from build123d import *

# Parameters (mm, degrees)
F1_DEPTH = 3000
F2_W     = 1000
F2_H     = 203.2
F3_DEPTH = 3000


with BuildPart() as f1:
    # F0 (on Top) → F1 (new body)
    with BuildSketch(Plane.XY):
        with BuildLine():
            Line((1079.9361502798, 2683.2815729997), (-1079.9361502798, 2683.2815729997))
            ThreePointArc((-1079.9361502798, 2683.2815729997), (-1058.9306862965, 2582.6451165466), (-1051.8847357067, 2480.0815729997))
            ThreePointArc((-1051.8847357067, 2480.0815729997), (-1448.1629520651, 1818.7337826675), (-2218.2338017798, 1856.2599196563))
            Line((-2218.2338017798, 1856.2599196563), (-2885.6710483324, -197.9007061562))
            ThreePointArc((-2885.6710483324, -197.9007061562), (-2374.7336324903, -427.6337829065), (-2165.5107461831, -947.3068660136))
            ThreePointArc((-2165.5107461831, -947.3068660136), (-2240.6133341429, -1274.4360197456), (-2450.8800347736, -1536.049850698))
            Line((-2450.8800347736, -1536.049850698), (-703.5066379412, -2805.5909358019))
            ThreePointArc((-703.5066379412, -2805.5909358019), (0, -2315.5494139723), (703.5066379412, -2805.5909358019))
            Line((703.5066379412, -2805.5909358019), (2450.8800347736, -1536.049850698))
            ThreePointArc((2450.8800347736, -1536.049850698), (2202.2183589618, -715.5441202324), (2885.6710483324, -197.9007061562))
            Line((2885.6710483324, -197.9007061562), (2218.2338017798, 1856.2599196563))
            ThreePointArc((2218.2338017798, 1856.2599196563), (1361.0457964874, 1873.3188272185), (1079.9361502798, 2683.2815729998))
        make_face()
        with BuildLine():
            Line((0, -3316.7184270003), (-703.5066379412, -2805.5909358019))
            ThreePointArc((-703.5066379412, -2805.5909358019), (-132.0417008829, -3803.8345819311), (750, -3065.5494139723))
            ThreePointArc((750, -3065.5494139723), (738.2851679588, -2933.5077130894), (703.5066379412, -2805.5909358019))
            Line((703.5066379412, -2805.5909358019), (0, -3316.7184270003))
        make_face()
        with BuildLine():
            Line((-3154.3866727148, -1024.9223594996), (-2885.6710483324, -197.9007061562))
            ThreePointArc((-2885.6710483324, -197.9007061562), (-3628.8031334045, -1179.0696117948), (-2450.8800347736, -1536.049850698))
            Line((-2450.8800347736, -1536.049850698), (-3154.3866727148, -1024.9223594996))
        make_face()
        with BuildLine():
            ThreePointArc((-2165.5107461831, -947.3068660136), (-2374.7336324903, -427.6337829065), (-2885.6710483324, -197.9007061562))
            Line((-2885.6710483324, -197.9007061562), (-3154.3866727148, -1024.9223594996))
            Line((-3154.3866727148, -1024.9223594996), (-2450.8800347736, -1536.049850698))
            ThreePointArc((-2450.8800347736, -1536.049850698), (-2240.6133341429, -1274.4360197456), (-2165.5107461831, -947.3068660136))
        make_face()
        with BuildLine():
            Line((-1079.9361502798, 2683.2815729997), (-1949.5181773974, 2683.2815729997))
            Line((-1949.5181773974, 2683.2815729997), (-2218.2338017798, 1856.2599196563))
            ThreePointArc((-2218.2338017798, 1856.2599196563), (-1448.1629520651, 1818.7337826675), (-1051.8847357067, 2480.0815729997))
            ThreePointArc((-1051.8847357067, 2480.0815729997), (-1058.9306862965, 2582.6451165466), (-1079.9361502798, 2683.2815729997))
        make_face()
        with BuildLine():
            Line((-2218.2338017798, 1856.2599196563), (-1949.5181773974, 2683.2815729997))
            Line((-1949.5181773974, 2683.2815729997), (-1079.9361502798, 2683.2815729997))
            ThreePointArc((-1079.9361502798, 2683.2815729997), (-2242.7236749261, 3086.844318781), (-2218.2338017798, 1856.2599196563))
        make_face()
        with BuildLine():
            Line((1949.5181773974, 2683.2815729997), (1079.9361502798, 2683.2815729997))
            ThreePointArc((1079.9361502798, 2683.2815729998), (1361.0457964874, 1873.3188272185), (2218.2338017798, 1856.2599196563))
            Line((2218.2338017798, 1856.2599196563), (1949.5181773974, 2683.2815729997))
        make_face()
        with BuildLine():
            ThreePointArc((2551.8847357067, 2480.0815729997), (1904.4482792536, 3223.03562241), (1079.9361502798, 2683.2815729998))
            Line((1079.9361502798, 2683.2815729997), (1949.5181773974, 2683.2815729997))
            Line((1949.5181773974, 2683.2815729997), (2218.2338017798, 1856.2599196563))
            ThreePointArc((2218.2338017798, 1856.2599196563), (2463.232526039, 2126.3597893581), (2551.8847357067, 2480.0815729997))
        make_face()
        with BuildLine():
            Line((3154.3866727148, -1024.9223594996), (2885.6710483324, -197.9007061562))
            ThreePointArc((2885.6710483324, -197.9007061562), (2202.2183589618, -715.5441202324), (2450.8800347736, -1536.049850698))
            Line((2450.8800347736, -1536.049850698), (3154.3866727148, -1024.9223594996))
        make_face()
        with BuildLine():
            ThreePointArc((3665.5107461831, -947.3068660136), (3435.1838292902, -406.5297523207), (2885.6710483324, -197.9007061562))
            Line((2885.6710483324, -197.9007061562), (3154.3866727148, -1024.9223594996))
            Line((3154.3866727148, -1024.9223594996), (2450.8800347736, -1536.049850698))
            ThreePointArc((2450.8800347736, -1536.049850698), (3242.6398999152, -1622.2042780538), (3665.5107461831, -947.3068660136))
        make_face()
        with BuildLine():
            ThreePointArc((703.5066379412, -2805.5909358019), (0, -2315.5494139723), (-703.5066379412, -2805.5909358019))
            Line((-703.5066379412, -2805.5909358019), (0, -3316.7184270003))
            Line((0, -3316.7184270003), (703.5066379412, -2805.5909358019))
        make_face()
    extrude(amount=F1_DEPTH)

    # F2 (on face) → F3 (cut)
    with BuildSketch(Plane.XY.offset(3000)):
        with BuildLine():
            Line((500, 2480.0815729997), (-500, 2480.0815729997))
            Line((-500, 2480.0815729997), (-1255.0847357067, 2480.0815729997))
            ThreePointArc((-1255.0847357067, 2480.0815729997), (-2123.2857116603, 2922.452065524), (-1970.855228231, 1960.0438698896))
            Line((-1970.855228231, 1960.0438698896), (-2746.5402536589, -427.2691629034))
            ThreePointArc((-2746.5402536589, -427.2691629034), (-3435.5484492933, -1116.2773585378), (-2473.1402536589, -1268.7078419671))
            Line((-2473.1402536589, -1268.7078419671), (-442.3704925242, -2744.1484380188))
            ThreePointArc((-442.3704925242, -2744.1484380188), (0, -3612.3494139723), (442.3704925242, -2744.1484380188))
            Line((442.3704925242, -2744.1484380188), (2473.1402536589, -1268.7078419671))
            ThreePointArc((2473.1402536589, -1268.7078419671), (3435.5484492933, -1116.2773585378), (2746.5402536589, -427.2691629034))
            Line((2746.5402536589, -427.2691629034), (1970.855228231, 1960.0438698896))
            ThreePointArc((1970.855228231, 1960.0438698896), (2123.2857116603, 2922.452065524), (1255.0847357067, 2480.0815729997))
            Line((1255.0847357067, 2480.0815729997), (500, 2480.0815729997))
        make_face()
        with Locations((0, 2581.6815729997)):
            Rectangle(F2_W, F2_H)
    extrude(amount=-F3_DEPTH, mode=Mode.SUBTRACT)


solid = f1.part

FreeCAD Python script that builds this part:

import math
import FreeCAD as App
import Part
import Sketcher
from FreeCAD import Vector
Q = App.Units.Quantity

doc = App.newDocument("Part")
body = doc.addObject("PartDesign::Body", "Body")

# Sketch on XY plane
sketch1 = body.newObject("Sketcher::SketchObject", "Sketch")
sketch1.AttachmentSupport = (doc.getObject("XY_Plane"), [""])
sketch1.MapMode = "FlatFace"
sketch1.addGeometry([
    Part.ArcOfCircle(Part.Circle(Vector(-1802, 2480, 0), Vector(0, 0, 1), 750), math.radians(16), math.radians(236)),  # 0
    Part.LineSegment(Vector(-2218, 1856, 0), Vector(-2886, -198, 0)),  # 1
    Part.ArcOfCircle(Part.Circle(Vector(-2916, -947, 0), Vector(0, 0, 1), 750), math.radians(88), math.radians(308)),  # 2
    Part.LineSegment(Vector(-2451, -1536, 0), Vector(-704, -2806, 0)),  # 3
    Part.ArcOfCircle(Part.Circle(Vector(0, -3066, 0), Vector(0, 0, 1), 750), math.radians(160), math.radians(380)),  # 4
    Part.LineSegment(Vector(704, -2806, 0), Vector(2451, -1536, 0)),  # 5
    Part.ArcOfCircle(Part.Circle(Vector(2916, -947, 0), Vector(0, 0, 1), 750), math.radians(-128), math.radians(92)),  # 6
    Part.LineSegment(Vector(2886, -198, 0), Vector(2218, 1856, 0)),  # 7
    Part.ArcOfCircle(Part.Circle(Vector(1802, 2480, 0), Vector(0, 0, 1), 750), math.radians(-56), math.radians(164)),  # 8
    Part.LineSegment(Vector(1080, 2683, 0), Vector(-1080, 2683, 0)),  # 9
], False)
sketch1.addConstraint([
    Sketcher.Constraint("Coincident", 0, 2, 1, 1),
    Sketcher.Constraint("Coincident", 1, 2, 2, 1),
    Sketcher.Constraint("Coincident", 2, 2, 3, 1),
    Sketcher.Constraint("Coincident", 3, 2, 4, 1),
    Sketcher.Constraint("Coincident", 4, 2, 5, 1),
    Sketcher.Constraint("Coincident", 5, 2, 6, 1),
    Sketcher.Constraint("Coincident", 6, 2, 7, 1),
    Sketcher.Constraint("Coincident", 7, 2, 8, 1),
    Sketcher.Constraint("Coincident", 8, 2, 9, 1),
    Sketcher.Constraint("Coincident", 9, 2, 0, 1),
    Sketcher.Constraint("Horizontal", 9),
    Sketcher.Constraint("Equal", 0, 2),
    Sketcher.Constraint("Equal", 2, 4),
    Sketcher.Constraint("Equal", 4, 6),
    Sketcher.Constraint("Equal", 6, 8),
    Sketcher.Constraint("Symmetric", 2, 3, 6, 3, -2),
    Sketcher.Constraint("Symmetric", 0, 3, 8, 3, -2),
    Sketcher.Constraint("PointOnObject", 4, 3, -2),
    Sketcher.Constraint("Equal", 1, 3),
    Sketcher.Constraint("Equal", 3, 5),
    Sketcher.Constraint("Equal", 5, 7),
    Sketcher.Constraint("Radius", 0, Q("750 mm")),
    Sketcher.Constraint("Angle", 1, Q("-108 deg")),
    Sketcher.Constraint("Angle", 3, Q("-36 deg")),
    Sketcher.Constraint("Angle", 5, Q("36 deg")),
    Sketcher.Constraint("Angle", 7, Q("108 deg")),
    Sketcher.Constraint("DistanceY", 0, 3, 9, 2, Q("203.2 mm")),
    Sketcher.Constraint("DistanceX", 9, 2, 9, 1, Q("2159.872301 mm")),
    Sketcher.Constraint("Distance", 1, Q("2159.872301 mm")),
    Sketcher.Constraint("DistanceX", -1, 1, 7, 2, Q("2218.233802 mm")),
    Sketcher.Constraint("DistanceX", 8, 3, 5, 2, Q("648.995299 mm")),
    Sketcher.Constraint("DistanceY", 5, 2, -1, 1, Q("1536.049851 mm")),
    Sketcher.Constraint("DistanceY", -1, 1, 7, 2, Q("1856.25992 mm")),
])
pad1 = body.newObject("PartDesign::Pad", "Pad")
pad1.Profile = sketch1
pad1.Length = 3000

# Sketch on XY plane
sketch2 = body.newObject("Sketcher::SketchObject", "Sketch001")
sketch2.AttachmentSupport = (doc.getObject("XY_Plane"), [""])
sketch2.MapMode = "FlatFace"
sketch2.AttachmentOffset = App.Placement(Vector(0, 0, 3000), App.Rotation())
sketch2.addGeometry([
    Part.ArcOfCircle(Part.Circle(Vector(-1802, 2480, 0), Vector(0, 0, 1), 547), math.radians(0), math.radians(252)),  # 0
    Part.LineSegment(Vector(-1971, 1960, 0), Vector(-2747, -427, 0)),  # 1
    Part.ArcOfCircle(Part.Circle(Vector(-2916, -947, 0), Vector(0, 0, 1), 547), math.radians(72), math.radians(324)),  # 2
    Part.LineSegment(Vector(-2473, -1269, 0), Vector(-442, -2744, 0)),  # 3
    Part.ArcOfCircle(Part.Circle(Vector(0, -3066, 0), Vector(0, 0, 1), 547), math.radians(144), math.radians(396)),  # 4
    Part.LineSegment(Vector(442, -2744, 0), Vector(2473, -1269, 0)),  # 5
    Part.ArcOfCircle(Part.Circle(Vector(2916, -947, 0), Vector(0, 0, 1), 547), math.radians(-144), math.radians(108)),  # 6
    Part.LineSegment(Vector(2747, -427, 0), Vector(1971, 1960, 0)),  # 7
    Part.ArcOfCircle(Part.Circle(Vector(1802, 2480, 0), Vector(0, 0, 1), 547), math.radians(-72), math.radians(180)),  # 8
    Part.LineSegment(Vector(1255, 2480, 0), Vector(500, 2480, 0)),  # 9
    Part.LineSegment(Vector(500, 2480, 0), Vector(500, 2683, 0)),  # 10
    Part.LineSegment(Vector(500, 2683, 0), Vector(-500, 2683, 0)),  # 11
    Part.LineSegment(Vector(-500, 2683, 0), Vector(-500, 2480, 0)),  # 12
    Part.LineSegment(Vector(-500, 2480, 0), Vector(-1255, 2480, 0)),  # 13
], False)
sketch2.addConstraint([
    Sketcher.Constraint("Coincident", 0, 2, 1, 1),
    Sketcher.Constraint("Coincident", 1, 2, 2, 1),
    Sketcher.Constraint("Coincident", 2, 2, 3, 1),
    Sketcher.Constraint("Coincident", 3, 2, 4, 1),
    Sketcher.Constraint("Coincident", 4, 2, 5, 1),
    Sketcher.Constraint("Coincident", 5, 2, 6, 1),
    Sketcher.Constraint("Coincident", 6, 2, 7, 1),
    Sketcher.Constraint("Coincident", 7, 2, 8, 1),
    Sketcher.Constraint("Coincident", 8, 2, 9, 1),
    Sketcher.Constraint("Coincident", 9, 2, 10, 1),
    Sketcher.Constraint("Coincident", 10, 2, 11, 1),
    Sketcher.Constraint("Coincident", 11, 2, 12, 1),
    Sketcher.Constraint("Coincident", 12, 2, 13, 1),
    Sketcher.Constraint("Coincident", 13, 2, 0, 1),
    Sketcher.Constraint("Horizontal", 9),
    Sketcher.Constraint("Vertical", 10),
    Sketcher.Constraint("Horizontal", 11),
    Sketcher.Constraint("Vertical", 12),
    Sketcher.Constraint("Horizontal", 13),
    Sketcher.Constraint("Equal", 0, 2),
    Sketcher.Constraint("Equal", 2, 4),
    Sketcher.Constraint("Equal", 4, 6),
    Sketcher.Constraint("Equal", 6, 8),
    Sketcher.Constraint("Symmetric", 2, 3, 6, 3, -2),
    Sketcher.Constraint("Symmetric", 0, 3, 8, 3, -2),
    Sketcher.Constraint("Symmetric", 3, 2, 4, 2, -2),
    Sketcher.Constraint("Symmetric", 9, 2, 12, 2, -2),
    Sketcher.Constraint("Horizontal", 2, 2, 5, 2),
    Sketcher.Constraint("Horizontal", 1, 2, 6, 2),
    Sketcher.Constraint("Horizontal", 0, 2, 7, 2),
    Sketcher.Constraint("Equal", 1, 3),
    Sketcher.Constraint("Radius", 0, Q("546.8 mm")),
    Sketcher.Constraint("DistanceX", 11, 2, 11, 1, Q("1000 mm")),
    Sketcher.Constraint("Angle", 1, Q("-108 deg")),
    Sketcher.Constraint("Angle", 3, Q("-36 deg")),
    Sketcher.Constraint("DistanceY", 10, 1, 10, 2, Q("203.2 mm")),
    Sketcher.Constraint("DistanceX", 1, 2, 2, 2, Q("273.4 mm")),
    Sketcher.Constraint("DistanceY", 8, 3, 10, 2, Q("203.2 mm")),
    Sketcher.Constraint("Distance", 1, Q("2510.169471 mm")),
    Sketcher.Constraint("DistanceX", 9, 2, 9, 1, Q("755.084736 mm")),
    Sketcher.Constraint("DistanceY", 3, 2, -1, 1, Q("2744.148438 mm")),
    Sketcher.Constraint("DistanceX", -1, 1, 7, 2, Q("1970.855228 mm")),
    Sketcher.Constraint("DistanceY", -1, 1, 7, 2, Q("1960.04387 mm")),
])
pocket1 = body.newObject("PartDesign::Pocket", "Pocket")
pocket1.Profile = sketch2
pocket1.Length = 3000

doc.recompute()
